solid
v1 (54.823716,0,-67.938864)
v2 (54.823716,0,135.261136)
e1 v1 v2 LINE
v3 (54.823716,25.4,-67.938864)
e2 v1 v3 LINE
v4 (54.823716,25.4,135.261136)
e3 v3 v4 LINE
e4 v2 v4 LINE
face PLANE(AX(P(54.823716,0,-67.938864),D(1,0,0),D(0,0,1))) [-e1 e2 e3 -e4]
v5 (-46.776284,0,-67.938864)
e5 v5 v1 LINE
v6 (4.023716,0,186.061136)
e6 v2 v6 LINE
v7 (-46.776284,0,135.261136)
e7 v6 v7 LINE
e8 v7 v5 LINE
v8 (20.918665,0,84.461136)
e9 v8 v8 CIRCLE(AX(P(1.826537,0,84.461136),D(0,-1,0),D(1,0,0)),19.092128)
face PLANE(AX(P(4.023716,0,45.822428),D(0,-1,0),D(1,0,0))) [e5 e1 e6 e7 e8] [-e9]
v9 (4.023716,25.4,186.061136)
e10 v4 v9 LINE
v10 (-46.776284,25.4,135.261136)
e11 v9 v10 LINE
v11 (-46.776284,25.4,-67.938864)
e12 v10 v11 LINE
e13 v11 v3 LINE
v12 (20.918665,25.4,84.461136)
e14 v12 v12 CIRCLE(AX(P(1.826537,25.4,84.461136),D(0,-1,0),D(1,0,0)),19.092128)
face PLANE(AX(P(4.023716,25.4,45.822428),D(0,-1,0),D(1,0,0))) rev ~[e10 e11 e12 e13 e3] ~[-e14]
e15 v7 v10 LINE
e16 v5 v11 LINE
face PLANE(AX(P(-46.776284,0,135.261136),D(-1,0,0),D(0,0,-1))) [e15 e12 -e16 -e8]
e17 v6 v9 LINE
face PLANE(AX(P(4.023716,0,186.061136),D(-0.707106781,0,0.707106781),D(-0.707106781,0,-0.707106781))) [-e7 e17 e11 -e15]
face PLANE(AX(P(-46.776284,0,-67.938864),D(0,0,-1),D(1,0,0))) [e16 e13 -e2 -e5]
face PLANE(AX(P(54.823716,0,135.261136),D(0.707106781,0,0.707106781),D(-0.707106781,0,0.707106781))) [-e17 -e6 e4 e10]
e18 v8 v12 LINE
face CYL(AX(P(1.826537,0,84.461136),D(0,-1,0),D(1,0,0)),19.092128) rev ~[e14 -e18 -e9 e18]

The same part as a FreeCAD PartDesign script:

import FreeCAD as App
import Part
import Sketcher
Q = App.Units.Quantity


def add_polygon(sketch, points):
    """Adds a closed chain of lines whose ends are joined by coincident constraints."""
    first, n = sketch.GeometryCount, len(points)
    for a, b in zip(points, points[1:] + points[:1]):
        sketch.addGeometry(Part.LineSegment(App.Vector(*a, 0), App.Vector(*b, 0)), False)
    for i in range(n):
        sketch.addConstraint(Sketcher.Constraint("Coincident", first + i, 2, first + (i + 1) % n, 1))

doc = App.newDocument("Part")
body = doc.addObject("PartDesign::Body", "Body")

# Sketch on XZ plane
sketch1 = doc.addObject("Sketcher::SketchObject", "Sketch")
body.addObject(sketch1)
sketch1.AttachmentSupport = (doc.XZ_Plane, [""])
sketch1.MapMode = "FlatFace"
add_polygon(sketch1, [(-47, -68), (55, -68), (55, 135), (4, 186), (-47, 135)])  # lines 0-4
sketch1.addGeometry(Part.Circle(App.Vector(2, 84, 0), App.Vector(0, 0, 1), 19), False)  # 5
sketch1.addConstraint([
    Sketcher.Constraint("Horizontal", 0),
    Sketcher.Constraint("Vertical", 1),
    Sketcher.Constraint("Vertical", 4),
    Sketcher.Constraint("Perpendicular", 2, 3),
    Sketcher.Constraint("Horizontal", 1, 2, 3, 2),
    Sketcher.Constraint("Equal", 2, 3),
    Sketcher.Constraint("DistanceX", 0, 1, 0, 2, Q("4 in")),
    Sketcher.Constraint("DistanceY", 1, 1, 1, 2, Q("8 in")),
    Sketcher.Constraint("DistanceY", 0, 2, 5, 3, Q("6 in")),
    Sketcher.Constraint("Diameter", 5, 38.184256),
    Sketcher.Constraint("DistanceX", 5, 3, 0, 2, 52.997179),
    Sketcher.Constraint("DistanceX", -1, 1, 5, 3, 1.826537),
    Sketcher.Constraint("DistanceY", -1, 1, 5, 3, 84.461136),
])
pad1 = doc.addObject("PartDesign::Pad", "Pad")
body.addObject(pad1)
pad1.Profile = sketch1
pad1.Length = Q("1 in")
pad1.Reversed = True

doc.recompute()
